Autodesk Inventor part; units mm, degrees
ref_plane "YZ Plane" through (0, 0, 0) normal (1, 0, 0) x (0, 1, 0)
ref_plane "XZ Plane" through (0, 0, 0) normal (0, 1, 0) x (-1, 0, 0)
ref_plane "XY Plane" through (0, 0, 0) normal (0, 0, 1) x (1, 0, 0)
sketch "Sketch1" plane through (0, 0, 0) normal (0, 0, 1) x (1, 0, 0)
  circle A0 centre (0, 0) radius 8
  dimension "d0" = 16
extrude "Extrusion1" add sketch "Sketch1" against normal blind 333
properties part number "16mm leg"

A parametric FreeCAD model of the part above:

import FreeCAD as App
import Part
import Sketcher
from FreeCAD import Vector

doc = App.newDocument("Part")
body = doc.addObject("PartDesign::Body", "Body")

# Sketch on XY plane
sketch1 = body.newObject("Sketcher::SketchObject", "Sketch")
sketch1.AttachmentSupport = (doc.getObject("XY_Plane"), [""])
sketch1.MapMode = "FlatFace"
sketch1.addGeometry(Part.Circle(Vector(0, 0, 0), Vector(0, 0, 1), 8), False)
sketch1.addConstraint([
    Sketcher.Constraint("Coincident", 0, 3, -1, 1),
    Sketcher.Constraint("Diameter", 0, 16.0),
])
pad1 = body.newObject("PartDesign::Pad", "Pad")
pad1.Profile = sketch1
pad1.Length = 333
pad1.Reversed = True

doc.recompute()
